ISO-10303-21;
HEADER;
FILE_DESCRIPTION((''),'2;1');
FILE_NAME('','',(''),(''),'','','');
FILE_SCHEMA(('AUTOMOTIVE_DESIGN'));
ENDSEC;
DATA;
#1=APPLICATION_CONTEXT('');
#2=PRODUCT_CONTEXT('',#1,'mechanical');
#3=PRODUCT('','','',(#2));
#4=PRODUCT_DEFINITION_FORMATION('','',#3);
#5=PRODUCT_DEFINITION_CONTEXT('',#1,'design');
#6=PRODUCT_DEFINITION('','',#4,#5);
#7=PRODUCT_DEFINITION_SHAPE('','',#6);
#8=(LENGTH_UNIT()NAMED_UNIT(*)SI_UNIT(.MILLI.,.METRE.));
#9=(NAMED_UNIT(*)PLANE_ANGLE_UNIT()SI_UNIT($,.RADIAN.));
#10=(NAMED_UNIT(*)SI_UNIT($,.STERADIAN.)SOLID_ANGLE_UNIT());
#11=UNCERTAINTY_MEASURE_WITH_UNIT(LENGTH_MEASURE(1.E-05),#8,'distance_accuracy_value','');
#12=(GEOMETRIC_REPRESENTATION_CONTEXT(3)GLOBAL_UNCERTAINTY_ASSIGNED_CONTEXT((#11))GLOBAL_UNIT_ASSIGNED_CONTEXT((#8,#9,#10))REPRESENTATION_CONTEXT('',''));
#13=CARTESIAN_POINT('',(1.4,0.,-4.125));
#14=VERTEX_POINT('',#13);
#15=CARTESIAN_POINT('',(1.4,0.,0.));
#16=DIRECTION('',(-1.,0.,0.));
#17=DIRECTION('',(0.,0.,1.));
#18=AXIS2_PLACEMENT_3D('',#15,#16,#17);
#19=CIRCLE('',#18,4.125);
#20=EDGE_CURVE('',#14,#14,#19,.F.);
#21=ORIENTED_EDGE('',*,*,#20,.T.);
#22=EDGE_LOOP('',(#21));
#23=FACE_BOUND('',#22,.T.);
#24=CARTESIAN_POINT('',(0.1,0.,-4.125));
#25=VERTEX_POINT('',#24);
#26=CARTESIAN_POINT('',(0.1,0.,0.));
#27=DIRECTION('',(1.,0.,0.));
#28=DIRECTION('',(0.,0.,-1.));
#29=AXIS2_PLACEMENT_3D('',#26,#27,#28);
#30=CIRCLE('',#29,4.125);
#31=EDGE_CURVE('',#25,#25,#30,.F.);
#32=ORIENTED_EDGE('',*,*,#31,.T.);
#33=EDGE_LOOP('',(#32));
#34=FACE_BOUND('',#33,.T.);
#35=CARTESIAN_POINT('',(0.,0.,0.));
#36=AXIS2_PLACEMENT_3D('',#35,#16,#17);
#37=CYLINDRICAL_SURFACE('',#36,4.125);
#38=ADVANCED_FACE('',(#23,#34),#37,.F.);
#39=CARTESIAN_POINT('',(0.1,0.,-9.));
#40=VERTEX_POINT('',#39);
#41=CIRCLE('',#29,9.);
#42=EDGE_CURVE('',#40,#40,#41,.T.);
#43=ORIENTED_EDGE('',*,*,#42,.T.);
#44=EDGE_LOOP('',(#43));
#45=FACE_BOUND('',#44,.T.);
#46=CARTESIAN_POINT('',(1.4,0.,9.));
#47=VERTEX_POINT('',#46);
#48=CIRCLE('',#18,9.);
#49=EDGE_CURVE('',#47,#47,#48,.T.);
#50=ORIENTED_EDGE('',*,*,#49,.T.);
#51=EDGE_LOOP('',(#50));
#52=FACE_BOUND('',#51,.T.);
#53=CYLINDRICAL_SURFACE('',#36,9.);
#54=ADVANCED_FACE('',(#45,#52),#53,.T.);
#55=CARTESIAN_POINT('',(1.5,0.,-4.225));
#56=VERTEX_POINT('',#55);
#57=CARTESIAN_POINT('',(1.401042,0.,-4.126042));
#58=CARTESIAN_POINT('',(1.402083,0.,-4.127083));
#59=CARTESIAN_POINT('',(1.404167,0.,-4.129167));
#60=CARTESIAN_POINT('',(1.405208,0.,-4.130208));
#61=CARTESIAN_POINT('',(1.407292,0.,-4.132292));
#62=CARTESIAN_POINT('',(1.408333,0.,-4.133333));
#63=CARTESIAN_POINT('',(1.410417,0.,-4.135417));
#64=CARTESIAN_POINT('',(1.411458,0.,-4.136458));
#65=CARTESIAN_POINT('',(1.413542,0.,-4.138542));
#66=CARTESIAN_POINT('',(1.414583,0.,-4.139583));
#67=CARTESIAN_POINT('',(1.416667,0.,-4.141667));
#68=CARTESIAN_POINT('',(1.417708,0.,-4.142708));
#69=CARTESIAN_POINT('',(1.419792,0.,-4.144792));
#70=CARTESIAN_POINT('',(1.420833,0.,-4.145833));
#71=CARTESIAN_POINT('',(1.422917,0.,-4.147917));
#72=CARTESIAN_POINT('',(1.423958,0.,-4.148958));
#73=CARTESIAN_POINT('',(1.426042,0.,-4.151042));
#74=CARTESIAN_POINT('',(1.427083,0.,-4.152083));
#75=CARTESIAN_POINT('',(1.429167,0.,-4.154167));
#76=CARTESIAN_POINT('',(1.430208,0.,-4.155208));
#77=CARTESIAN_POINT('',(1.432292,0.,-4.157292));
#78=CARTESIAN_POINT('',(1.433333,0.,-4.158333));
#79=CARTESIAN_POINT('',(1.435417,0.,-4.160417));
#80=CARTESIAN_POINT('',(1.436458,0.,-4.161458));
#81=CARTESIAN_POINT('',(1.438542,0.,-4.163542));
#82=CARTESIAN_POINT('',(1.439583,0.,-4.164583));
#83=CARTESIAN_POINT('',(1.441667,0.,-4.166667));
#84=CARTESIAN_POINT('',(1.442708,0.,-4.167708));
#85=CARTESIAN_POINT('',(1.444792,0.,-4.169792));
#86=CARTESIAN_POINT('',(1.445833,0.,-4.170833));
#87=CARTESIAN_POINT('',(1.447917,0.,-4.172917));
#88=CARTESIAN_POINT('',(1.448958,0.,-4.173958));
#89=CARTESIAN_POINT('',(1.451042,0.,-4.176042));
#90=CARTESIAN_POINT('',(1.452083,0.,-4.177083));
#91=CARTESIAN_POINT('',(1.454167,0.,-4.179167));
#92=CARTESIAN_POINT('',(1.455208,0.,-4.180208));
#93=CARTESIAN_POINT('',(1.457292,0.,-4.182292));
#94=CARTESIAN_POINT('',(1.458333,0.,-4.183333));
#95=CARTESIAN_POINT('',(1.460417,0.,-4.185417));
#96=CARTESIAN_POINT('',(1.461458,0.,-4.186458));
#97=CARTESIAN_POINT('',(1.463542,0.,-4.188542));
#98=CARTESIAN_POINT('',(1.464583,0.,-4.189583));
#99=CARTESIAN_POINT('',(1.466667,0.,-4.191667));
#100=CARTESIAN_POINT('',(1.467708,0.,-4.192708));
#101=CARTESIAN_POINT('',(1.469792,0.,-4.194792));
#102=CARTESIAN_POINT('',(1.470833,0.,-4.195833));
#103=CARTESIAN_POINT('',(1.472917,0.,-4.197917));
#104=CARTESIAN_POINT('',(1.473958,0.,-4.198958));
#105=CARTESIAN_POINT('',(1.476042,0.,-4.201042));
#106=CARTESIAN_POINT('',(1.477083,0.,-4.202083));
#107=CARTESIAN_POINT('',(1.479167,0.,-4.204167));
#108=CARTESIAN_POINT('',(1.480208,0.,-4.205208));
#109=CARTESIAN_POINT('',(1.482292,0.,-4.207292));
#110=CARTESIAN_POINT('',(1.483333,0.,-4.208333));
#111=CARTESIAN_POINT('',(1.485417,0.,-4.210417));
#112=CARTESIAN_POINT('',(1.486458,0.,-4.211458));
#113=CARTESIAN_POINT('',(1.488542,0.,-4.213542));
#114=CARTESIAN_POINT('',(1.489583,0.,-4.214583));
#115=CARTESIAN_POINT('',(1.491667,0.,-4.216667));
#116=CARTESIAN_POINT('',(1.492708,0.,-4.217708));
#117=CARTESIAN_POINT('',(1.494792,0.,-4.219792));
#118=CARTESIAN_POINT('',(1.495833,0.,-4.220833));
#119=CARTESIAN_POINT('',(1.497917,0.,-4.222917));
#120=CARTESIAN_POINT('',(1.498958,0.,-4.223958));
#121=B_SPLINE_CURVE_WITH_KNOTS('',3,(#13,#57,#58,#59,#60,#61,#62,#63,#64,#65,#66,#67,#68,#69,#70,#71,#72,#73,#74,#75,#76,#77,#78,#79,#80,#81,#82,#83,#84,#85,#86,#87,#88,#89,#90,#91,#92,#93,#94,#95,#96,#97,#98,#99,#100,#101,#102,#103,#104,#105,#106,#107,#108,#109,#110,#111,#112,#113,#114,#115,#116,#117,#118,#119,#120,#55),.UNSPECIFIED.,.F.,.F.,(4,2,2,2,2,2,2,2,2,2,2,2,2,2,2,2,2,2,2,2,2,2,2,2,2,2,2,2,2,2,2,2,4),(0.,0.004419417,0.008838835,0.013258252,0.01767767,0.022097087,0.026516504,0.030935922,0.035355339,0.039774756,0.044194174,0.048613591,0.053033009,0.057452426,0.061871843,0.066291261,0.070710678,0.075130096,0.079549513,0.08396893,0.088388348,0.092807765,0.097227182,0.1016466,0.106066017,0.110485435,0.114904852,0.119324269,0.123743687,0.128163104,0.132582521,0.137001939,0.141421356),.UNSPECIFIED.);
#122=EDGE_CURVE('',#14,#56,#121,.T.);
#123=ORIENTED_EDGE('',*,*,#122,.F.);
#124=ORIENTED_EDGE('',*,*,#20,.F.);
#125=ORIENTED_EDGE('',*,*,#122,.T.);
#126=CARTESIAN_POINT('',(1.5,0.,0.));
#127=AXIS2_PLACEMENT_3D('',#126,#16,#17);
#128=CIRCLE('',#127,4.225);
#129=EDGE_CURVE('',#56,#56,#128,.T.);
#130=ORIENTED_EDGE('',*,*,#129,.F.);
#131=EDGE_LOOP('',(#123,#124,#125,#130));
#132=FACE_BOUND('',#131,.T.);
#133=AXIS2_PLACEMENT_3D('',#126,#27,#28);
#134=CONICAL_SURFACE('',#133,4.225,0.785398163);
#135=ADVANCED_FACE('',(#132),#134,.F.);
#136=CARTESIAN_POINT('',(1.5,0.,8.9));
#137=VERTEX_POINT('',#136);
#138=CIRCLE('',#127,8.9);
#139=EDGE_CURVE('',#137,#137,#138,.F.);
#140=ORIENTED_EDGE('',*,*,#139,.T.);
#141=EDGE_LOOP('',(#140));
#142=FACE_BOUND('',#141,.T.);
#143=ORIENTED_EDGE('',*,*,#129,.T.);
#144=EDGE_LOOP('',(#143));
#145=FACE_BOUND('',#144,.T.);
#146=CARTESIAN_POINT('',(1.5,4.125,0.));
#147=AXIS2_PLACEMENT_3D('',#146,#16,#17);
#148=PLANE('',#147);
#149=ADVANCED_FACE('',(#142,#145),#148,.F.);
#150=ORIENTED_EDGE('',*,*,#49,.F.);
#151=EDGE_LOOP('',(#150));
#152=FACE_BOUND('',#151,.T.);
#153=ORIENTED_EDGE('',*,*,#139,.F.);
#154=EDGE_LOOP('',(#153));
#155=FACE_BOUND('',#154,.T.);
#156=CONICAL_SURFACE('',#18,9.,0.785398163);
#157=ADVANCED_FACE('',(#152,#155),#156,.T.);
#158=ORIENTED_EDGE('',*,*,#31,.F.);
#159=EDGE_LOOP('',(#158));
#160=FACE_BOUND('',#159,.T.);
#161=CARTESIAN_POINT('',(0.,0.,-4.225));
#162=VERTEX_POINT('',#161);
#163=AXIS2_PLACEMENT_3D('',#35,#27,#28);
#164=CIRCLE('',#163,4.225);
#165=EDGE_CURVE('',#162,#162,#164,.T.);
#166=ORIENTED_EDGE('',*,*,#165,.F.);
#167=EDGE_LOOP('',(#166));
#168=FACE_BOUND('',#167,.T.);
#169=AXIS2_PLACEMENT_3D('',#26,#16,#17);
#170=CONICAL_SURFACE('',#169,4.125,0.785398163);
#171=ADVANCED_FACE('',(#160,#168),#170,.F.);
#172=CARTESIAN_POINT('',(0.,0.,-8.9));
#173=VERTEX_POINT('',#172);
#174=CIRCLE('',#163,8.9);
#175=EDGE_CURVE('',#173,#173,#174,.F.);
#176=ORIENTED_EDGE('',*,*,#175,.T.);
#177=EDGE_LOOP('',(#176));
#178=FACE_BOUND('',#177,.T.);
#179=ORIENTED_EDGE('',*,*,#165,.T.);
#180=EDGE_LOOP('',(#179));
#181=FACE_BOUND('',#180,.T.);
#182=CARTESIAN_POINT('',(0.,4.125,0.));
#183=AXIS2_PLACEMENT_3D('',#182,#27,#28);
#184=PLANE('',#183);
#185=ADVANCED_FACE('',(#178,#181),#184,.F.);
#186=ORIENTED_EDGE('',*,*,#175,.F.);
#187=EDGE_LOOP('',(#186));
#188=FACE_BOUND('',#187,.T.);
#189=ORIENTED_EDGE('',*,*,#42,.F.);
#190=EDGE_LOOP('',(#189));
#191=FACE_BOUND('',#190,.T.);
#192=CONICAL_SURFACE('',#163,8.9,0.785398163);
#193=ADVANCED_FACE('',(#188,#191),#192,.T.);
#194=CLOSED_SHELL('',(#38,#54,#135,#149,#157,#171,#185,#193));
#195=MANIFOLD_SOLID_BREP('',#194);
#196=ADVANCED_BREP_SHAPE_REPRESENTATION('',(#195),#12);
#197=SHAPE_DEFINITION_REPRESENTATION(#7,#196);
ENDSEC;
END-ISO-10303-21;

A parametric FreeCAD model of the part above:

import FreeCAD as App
import Part
import Sketcher
Q = App.Units.Quantity


def edges_at(feature, points):
    """Names of the edges that pass closest to the given points."""
    edges = feature.Shape.Edges
    near = lambda p: min(range(len(edges)), key=lambda i: edges[i].distToShape(Part.Vertex(*p))[0])
    return sorted({f"Edge{near(p) + 1}" for p in points})


def add_polygon(sketch, points):
    """Adds a closed chain of lines whose ends are joined by coincident constraints."""
    first, n = sketch.GeometryCount, len(points)
    for a, b in zip(points, points[1:] + points[:1]):
        sketch.addGeometry(Part.LineSegment(App.Vector(*a, 0), App.Vector(*b, 0)), False)
    for i in range(n):
        sketch.addConstraint(Sketcher.Constraint("Coincident", first + i, 2, first + (i + 1) % n, 1))

doc = App.newDocument("Part")
body = doc.addObject("PartDesign::Body", "Body")

sketch1 = body.newObject("Sketcher::SketchObject", "Sketch")
sketch1.AttachmentSupport = (doc.getObject("XY_Plane"), [""])
sketch1.MapMode = "FlatFace"
add_polygon(sketch1, [(0, 9), (0, 4.1), (1.5, 4.1), (1.5, 9)])
sketch1.addConstraint([
    Sketcher.Constraint("Vertical", 0),
    Sketcher.Constraint("Horizontal", 1),
    Sketcher.Constraint("Vertical", 2),
    Sketcher.Constraint("Horizontal", 3),
    Sketcher.Constraint("PointOnObject", 0, 2, -2),
    Sketcher.Constraint("DistanceX", 1, 1, 1, 2, Q("1.5 mm")),
    Sketcher.Constraint("DistanceY", -1, 1, 2, 2, Q("9 mm")),
    Sketcher.Constraint("DistanceY", 0, 2, 0, 1, Q("4.875 mm")),
])
revolution = body.newObject("PartDesign::Revolution", "Revolution")
revolution.Profile = sketch1
revolution.ReferenceAxis = (sketch1, ["H_Axis"])
revolution.Angle = 360
doc.recompute()

chamfer = body.newObject("PartDesign::Chamfer", "Chamfer")
chamfer.Base = (revolution, edges_at(revolution, [
    (0, 0, 4.125),
    (1.5, 0, 4.125),
    (1.5, 0, 9),
    (0, 0, 9),
]))
chamfer.Size = 0.1

doc.recompute()
